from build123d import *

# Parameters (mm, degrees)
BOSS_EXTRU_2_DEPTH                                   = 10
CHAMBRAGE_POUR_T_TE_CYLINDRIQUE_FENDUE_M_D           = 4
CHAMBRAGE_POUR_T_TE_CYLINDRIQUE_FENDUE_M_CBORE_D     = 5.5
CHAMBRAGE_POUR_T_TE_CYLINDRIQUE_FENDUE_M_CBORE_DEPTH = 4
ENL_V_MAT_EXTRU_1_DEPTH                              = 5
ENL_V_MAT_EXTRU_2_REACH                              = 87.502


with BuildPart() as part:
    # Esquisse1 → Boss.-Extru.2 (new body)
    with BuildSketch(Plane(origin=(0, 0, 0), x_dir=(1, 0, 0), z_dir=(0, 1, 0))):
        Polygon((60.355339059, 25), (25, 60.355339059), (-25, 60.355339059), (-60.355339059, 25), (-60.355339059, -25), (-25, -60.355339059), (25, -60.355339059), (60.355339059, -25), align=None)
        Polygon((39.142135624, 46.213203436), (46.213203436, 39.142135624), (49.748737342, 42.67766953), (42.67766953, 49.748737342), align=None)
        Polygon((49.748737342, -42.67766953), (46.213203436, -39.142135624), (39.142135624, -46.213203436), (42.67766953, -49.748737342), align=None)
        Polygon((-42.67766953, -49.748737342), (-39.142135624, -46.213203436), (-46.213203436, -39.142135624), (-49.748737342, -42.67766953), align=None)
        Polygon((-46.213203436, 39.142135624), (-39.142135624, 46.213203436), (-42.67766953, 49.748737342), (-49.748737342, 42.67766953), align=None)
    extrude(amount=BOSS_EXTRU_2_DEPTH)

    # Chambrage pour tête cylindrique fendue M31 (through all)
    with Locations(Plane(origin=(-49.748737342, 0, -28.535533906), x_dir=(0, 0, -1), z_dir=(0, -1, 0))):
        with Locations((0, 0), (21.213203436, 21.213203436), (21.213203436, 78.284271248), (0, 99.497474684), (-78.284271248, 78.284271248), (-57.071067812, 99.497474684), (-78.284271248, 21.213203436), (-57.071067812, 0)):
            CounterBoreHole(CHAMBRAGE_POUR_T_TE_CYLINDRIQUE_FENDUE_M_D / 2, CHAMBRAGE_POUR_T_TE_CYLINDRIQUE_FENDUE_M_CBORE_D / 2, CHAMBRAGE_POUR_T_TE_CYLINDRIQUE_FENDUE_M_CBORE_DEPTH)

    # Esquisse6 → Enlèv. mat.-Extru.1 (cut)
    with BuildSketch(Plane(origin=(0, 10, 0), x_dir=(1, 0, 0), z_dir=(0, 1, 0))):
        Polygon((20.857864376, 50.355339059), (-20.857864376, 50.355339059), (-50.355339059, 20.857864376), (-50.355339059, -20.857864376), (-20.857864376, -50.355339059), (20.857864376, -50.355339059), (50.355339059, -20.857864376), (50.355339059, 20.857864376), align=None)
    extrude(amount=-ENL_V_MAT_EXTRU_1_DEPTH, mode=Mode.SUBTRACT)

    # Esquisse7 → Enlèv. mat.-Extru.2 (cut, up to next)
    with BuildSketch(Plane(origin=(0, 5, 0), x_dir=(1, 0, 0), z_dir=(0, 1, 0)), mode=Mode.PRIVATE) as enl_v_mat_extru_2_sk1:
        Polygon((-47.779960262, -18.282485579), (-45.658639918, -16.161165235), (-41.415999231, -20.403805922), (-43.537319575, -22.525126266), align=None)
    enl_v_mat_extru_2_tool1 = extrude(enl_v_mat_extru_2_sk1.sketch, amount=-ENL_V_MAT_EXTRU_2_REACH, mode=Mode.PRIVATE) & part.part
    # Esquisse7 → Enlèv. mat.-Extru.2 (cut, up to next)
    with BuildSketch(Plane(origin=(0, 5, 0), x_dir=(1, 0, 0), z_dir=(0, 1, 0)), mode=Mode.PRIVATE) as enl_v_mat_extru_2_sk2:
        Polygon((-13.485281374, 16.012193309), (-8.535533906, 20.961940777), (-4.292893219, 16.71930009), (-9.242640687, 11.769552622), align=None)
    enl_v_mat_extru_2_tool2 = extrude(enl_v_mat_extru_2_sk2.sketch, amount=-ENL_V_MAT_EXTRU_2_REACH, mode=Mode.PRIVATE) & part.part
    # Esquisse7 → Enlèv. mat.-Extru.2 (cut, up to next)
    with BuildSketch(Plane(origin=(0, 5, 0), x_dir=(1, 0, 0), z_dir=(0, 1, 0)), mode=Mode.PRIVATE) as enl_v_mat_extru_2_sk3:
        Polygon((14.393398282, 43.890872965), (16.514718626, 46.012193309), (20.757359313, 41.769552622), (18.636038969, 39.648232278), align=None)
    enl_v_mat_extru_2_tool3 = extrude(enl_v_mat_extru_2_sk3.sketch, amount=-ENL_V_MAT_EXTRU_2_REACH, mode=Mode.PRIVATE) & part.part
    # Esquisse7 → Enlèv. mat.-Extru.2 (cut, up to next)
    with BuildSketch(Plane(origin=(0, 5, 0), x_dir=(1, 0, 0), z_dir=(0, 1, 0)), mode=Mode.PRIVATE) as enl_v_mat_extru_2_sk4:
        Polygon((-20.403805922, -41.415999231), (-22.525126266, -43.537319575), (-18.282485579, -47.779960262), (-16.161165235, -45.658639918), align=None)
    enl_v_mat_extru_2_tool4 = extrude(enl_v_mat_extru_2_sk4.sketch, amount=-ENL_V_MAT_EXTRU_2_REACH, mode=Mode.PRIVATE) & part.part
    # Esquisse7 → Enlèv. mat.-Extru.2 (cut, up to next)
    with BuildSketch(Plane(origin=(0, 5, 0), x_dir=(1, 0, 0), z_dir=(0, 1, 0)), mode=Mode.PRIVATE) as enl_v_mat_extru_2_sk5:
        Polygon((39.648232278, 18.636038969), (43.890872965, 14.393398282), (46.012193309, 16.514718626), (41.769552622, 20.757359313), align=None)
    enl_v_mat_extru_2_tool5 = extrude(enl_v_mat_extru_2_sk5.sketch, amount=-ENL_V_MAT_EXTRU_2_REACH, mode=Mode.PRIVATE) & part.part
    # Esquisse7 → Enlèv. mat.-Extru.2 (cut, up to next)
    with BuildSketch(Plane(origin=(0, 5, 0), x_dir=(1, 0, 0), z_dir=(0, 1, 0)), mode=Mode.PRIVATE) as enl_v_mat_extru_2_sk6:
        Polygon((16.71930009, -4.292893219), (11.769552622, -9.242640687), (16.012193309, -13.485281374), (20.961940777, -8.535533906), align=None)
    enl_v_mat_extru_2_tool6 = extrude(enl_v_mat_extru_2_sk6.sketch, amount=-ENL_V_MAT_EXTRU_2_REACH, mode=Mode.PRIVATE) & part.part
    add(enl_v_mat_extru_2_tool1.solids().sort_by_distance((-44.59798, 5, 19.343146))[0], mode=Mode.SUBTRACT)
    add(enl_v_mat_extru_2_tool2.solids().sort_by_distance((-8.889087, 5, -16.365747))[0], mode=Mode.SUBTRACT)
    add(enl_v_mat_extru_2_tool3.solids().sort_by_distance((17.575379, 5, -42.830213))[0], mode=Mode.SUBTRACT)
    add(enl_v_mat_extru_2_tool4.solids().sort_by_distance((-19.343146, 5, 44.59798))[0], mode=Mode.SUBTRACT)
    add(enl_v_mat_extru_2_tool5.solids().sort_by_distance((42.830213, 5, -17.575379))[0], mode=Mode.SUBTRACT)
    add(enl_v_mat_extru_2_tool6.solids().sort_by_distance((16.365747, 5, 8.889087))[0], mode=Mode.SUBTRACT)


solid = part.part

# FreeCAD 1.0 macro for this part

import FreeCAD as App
import Part
import Sketcher
from FreeCAD import Vector
Q = App.Units.Quantity


def add_polygon(sketch, points):
    """Adds a closed chain of lines whose ends are joined by coincident constraints."""
    first, n = sketch.GeometryCount, len(points)
    for a, b in zip(points, points[1:] + points[:1]):
        sketch.addGeometry(Part.LineSegment(App.Vector(*a, 0), App.Vector(*b, 0)), False)
    for i in range(n):
        sketch.addConstraint(Sketcher.Constraint("Coincident", first + i, 2, first + (i + 1) % n, 1))

doc = App.newDocument("Part")
body = doc.addObject("PartDesign::Body", "Body")

# Sketch on XZ plane
sketch1 = body.newObject("Sketcher::SketchObject", "Sketch")
sketch1.AttachmentSupport = (doc.getObject("XZ_Plane"), [""])
sketch1.MapMode = "FlatFace"
add_polygon(sketch1, [(60, -25), (46, -39), (50, -43), (43, -50), (39, -46), (25, -60), (-25, -60), (-39, -46), (-43, -50), (-50, -43), (-46, -39), (-60, -25), (-60, 25), (-46, 39), (-50, 43), (-43, 50), (-39, 46), (-25, 60), (25, 60), (39, 46), (43, 50), (50, 43), (46, 39), (60, 25)])  # lines 0-23
sketch1.addConstraint([
    Sketcher.Constraint("Horizontal", 5),
    Sketcher.Constraint("Vertical", 11),
    Sketcher.Constraint("Horizontal", 17),
    Sketcher.Constraint("Vertical", 23),
    Sketcher.Constraint("Symmetric", 0, 2, 12, 2, -1, 1),
    Sketcher.Constraint("Symmetric", 1, 2, 13, 2, -1, 1),
    Sketcher.Constraint("Symmetric", 2, 2, 14, 2, -1, 1),
    Sketcher.Constraint("Symmetric", 3, 2, 15, 2, -1, 1),
    Sketcher.Constraint("Symmetric", 4, 2, 16, 2, -1, 1),
    Sketcher.Constraint("Symmetric", 6, 2, 18, 2, -1, 1),
    Sketcher.Constraint("Symmetric", 7, 2, 19, 2, -1, 1),
    Sketcher.Constraint("Symmetric", 8, 2, 20, 2, -1, 1),
    Sketcher.Constraint("Symmetric", 9, 2, 21, 2, -1, 1),
    Sketcher.Constraint("Symmetric", 10, 2, 22, 2, -1, 1),
    Sketcher.Constraint("Symmetric", 3, 2, 6, 2, -2),
    Sketcher.Constraint("Symmetric", 2, 2, 7, 2, -2),
    Sketcher.Constraint("Symmetric", 1, 2, 8, 2, -2),
    Sketcher.Constraint("Symmetric", 0, 2, 9, 2, -2),
    Sketcher.Constraint("Perpendicular", 0, 1),
    Sketcher.Constraint("Perpendicular", 1, 2),
    Sketcher.Constraint("Perpendicular", 2, 3),
    Sketcher.Constraint("Perpendicular", 3, 4),
    Sketcher.Constraint("Perpendicular", 4, 6),
    Sketcher.Constraint("Perpendicular", 6, 7),
    Sketcher.Constraint("Perpendicular", 9, 10),
    Sketcher.Constraint("Perpendicular", 10, 12),
    Sketcher.Constraint("Perpendicular", 16, 18),
    Sketcher.Constraint("Equal", 17, 11),
    Sketcher.Constraint("Equal", 1, 3),
    Sketcher.Constraint("Equal", 0, 4),
    Sketcher.Constraint("DistanceX", 5, 2, 5, 1, Q("50 mm")),
    Sketcher.Constraint("Distance", 0, Q("20 mm")),
    Sketcher.Constraint("Distance", 1, Q("5 mm")),
    Sketcher.Constraint("Distance", 2, Q("10 mm")),
])
pad1 = body.newObject("PartDesign::Pad", "Pad")
pad1.Profile = sketch1
pad1.Length = 10
pad1.Reversed = True

# Sketch on XZ plane
sketch2 = body.newObject("Sketcher::SketchObject", "Sketch001")
sketch2.AttachmentSupport = (doc.getObject("XZ_Plane"), [""])
sketch2.MapMode = "FlatFace"
sketch2.addGeometry([
    Part.Circle(Vector(-49.7, -28.5, 0), Vector(0, 0, 1), 2),  # 0
    Part.Circle(Vector(-28.5, -49.7, 0), Vector(0, 0, 1), 2),  # 1
    Part.Circle(Vector(28.5, -49.7, 0), Vector(0, 0, 1), 2),  # 2
    Part.Circle(Vector(49.7, -28.5, 0), Vector(0, 0, 1), 2),  # 3
    Part.Circle(Vector(28.5, 49.7, 0), Vector(0, 0, 1), 2),  # 4
    Part.Circle(Vector(49.7, 28.5, 0), Vector(0, 0, 1), 2),  # 5
    Part.Circle(Vector(-28.5, 49.7, 0), Vector(0, 0, 1), 2),  # 6
    Part.Circle(Vector(-49.7, 28.5, 0), Vector(0, 0, 1), 2),  # 7
], False)
sketch2.addConstraint([
    Sketcher.Constraint("Equal", 0, 1),
    Sketcher.Constraint("Equal", 1, 2),
    Sketcher.Constraint("Equal", 2, 3),
    Sketcher.Constraint("Equal", 3, 4),
    Sketcher.Constraint("Equal", 4, 5),
    Sketcher.Constraint("Equal", 5, 6),
    Sketcher.Constraint("Equal", 6, 7),
    Sketcher.Constraint("Symmetric", 1, 3, 4, 3, -1, 1),
    Sketcher.Constraint("Symmetric", 0, 3, 5, 3, -1, 1),
    Sketcher.Constraint("Symmetric", 2, 3, 6, 3, -1, 1),
    Sketcher.Constraint("Symmetric", 3, 3, 7, 3, -1, 1),
    Sketcher.Constraint("Symmetric", 1, 3, 2, 3, -2),
    Sketcher.Constraint("Symmetric", 0, 3, 3, 3, -2),
    Sketcher.Constraint("Diameter", 0, Q("4 mm")),
    Sketcher.Constraint("DistanceX", 0, 3, 2, 3, Q("78.284271 mm")),
    Sketcher.Constraint("DistanceY", 3, 3, 4, 3, Q("78.284271 mm")),
    Sketcher.Constraint("DistanceX", 0, 3, -1, 1, Q("49.748737 mm")),
    Sketcher.Constraint("DistanceY", 0, 3, -1, 1, Q("28.535534 mm")),
])
doc.recompute()
hole = body.newObject("PartDesign::Hole", "Hole")
hole.Profile = sketch2
hole.ThreadType = "None"
hole.Diameter = 4
hole.DepthType = "ThroughAll"
hole.HoleCutType = "Counterbore"
hole.HoleCutDiameter = 5.5
hole.HoleCutDepth = 4

# Sketch on XZ plane
sketch3 = body.newObject("Sketcher::SketchObject", "Sketch002")
sketch3.AttachmentSupport = (doc.getObject("XZ_Plane"), [""])
sketch3.MapMode = "FlatFace"
sketch3.AttachmentOffset = App.Placement(Vector(0, 0, -10), App.Rotation())
add_polygon(sketch3, [(21, -50), (-21, -50), (-50, -21), (-50, 21), (-21, 50), (21, 50), (50, 21), (50, -21)])  # lines 0-7
sketch3.addConstraint([
    Sketcher.Constraint("Horizontal", 0),
    Sketcher.Constraint("Vertical", 2),
    Sketcher.Constraint("Horizontal", 4),
    Sketcher.Constraint("Vertical", 6),
    Sketcher.Constraint("Symmetric", 0, 2, 4, 2, -1, 1),
    Sketcher.Constraint("Symmetric", 1, 2, 5, 2, -1, 1),
    Sketcher.Constraint("Perpendicular", 1, 3),
    Sketcher.Constraint("Perpendicular", 5, 7),
    Sketcher.Constraint("Horizontal", 2, 2, 5, 2),
    Sketcher.Constraint("Horizontal", 1, 2, 6, 2),
    Sketcher.Constraint("Vertical", 0, 2, 3, 2),
    Sketcher.Constraint("Equal", 4, 2),
    Sketcher.Constraint("DistanceX", 0, 2, 0, 1, Q("41.715729 mm")),
    Sketcher.Constraint("Distance", 1, Q("41.715729 mm")),
])
pocket1 = body.newObject("PartDesign::Pocket", "Pocket")
pocket1.Profile = sketch3
pocket1.Length = 5
pocket1.Reversed = True

# Sketch on XZ plane
sketch4 = body.newObject("Sketcher::SketchObject", "Sketch003")
sketch4.AttachmentSupport = (doc.getObject("XZ_Plane"), [""])
sketch4.MapMode = "FlatFace"
sketch4.AttachmentOffset = App.Placement(Vector(0, 0, -5), App.Rotation())
add_polygon(sketch4, [(-45.7, 16.2), (-47.8, 18.3), (-43.5, 22.5), (-41.4, 20.4)])  # lines 0-3
sketch4.addConstraint([
    Sketcher.Constraint("Perpendicular", 0, 1),
    Sketcher.Constraint("Perpendicular", 1, 2),
    Sketcher.Constraint("Perpendicular", 2, 3),
    Sketcher.Constraint("Angle", 0, Q("135 deg")),
    Sketcher.Constraint("Distance", 0, Q("3 mm")),
    Sketcher.Constraint("Distance", 1, Q("6 mm")),
    Sketcher.Constraint("DistanceX", 2, 2, -1, 1, Q("41.415999 mm")),
    Sketcher.Constraint("DistanceY", -1, 1, 0, 2, Q("18.282486 mm")),
])
pocket2 = body.newObject("PartDesign::Pocket", "Pocket001")
pocket2.Profile = sketch4
pocket2.Type = "UpToFirst"
pocket2.Reversed = True

# Sketch on XZ plane
sketch5 = body.newObject("Sketcher::SketchObject", "Sketch004")
sketch5.AttachmentSupport = (doc.getObject("XZ_Plane"), [""])
sketch5.MapMode = "FlatFace"
sketch5.AttachmentOffset = App.Placement(Vector(0, 0, -5), App.Rotation())
add_polygon(sketch5, [(-9, -21), (-13, -16), (-9, -12), (-4, -17)])  # lines 0-3
sketch5.addConstraint([
    Sketcher.Constraint("Perpendicular", 0, 1),
    Sketcher.Constraint("Perpendicular", 1, 2),
    Sketcher.Constraint("Perpendicular", 2, 3),
    Sketcher.Constraint("Angle", 0, Q("135 deg")),
    Sketcher.Constraint("Distance", 0, Q("7 mm")),
    Sketcher.Constraint("Distance", 1, Q("6 mm")),
    Sketcher.Constraint("DistanceY", 2, 2, -1, 1, Q("16.7193 mm")),
    Sketcher.Constraint("DistanceX", 0, 2, -1, 1, Q("13.485281 mm")),
])
pocket3 = body.newObject("PartDesign::Pocket", "Pocket002")
pocket3.Profile = sketch5
pocket3.Type = "UpToFirst"
pocket3.Reversed = True

# Sketch on XZ plane
sketch6 = body.newObject("Sketcher::SketchObject", "Sketch005")
sketch6.AttachmentSupport = (doc.getObject("XZ_Plane"), [""])
sketch6.MapMode = "FlatFace"
sketch6.AttachmentOffset = App.Placement(Vector(0, 0, -5), App.Rotation())
add_polygon(sketch6, [(16.5, -46), (14.4, -43.9), (18.6, -39.6), (20.8, -41.8)])  # lines 0-3
sketch6.addConstraint([
    Sketcher.Constraint("Perpendicular", 0, 1),
    Sketcher.Constraint("Perpendicular", 1, 2),
    Sketcher.Constraint("Perpendicular", 2, 3),
    Sketcher.Constraint("Angle", 0, Q("135 deg")),
    Sketcher.Constraint("Distance", 0, Q("3 mm")),
    Sketcher.Constraint("Distance", 1, Q("6 mm")),
    Sketcher.Constraint("DistanceX", -1, 1, 0, 2, Q("14.393398 mm")),
    Sketcher.Constraint("DistanceY", 0, 2, -1, 1, Q("43.890873 mm")),
])
pocket4 = body.newObject("PartDesign::Pocket", "Pocket003")
pocket4.Profile = sketch6
pocket4.Type = "UpToFirst"
pocket4.Reversed = True

# Sketch on XZ plane
sketch7 = body.newObject("Sketcher::SketchObject", "Sketch006")
sketch7.AttachmentSupport = (doc.getObject("XZ_Plane"), [""])
sketch7.MapMode = "FlatFace"
sketch7.AttachmentOffset = App.Placement(Vector(0, 0, -5), App.Rotation())
add_polygon(sketch7, [(-20.4, 41.4), (-22.5, 43.5), (-18.3, 47.8), (-16.2, 45.7)])  # lines 0-3
sketch7.addConstraint([
    Sketcher.Constraint("Perpendicular", 0, 1),
    Sketcher.Constraint("Perpendicular", 1, 2),
    Sketcher.Constraint("Perpendicular", 2, 3),
    Sketcher.Constraint("Angle", 0, Q("135 deg")),
    Sketcher.Constraint("Distance", 0, Q("3 mm")),
    Sketcher.Constraint("Distance", 1, Q("6 mm")),
    Sketcher.Constraint("DistanceY", -1, 1, 3, 2, Q("41.415999 mm")),
    Sketcher.Constraint("DistanceX", 0, 2, -1, 1, Q("22.525126 mm")),
])
pocket5 = body.newObject("PartDesign::Pocket", "Pocket004")
pocket5.Profile = sketch7
pocket5.Type = "UpToFirst"
pocket5.Reversed = True

# Sketch on XZ plane
sketch8 = body.newObject("Sketcher::SketchObject", "Sketch007")
sketch8.AttachmentSupport = (doc.getObject("XZ_Plane"), [""])
sketch8.MapMode = "FlatFace"
sketch8.AttachmentOffset = App.Placement(Vector(0, 0, -5), App.Rotation())
add_polygon(sketch8, [(39.6, -18.6), (43.9, -14.4), (46, -16.5), (41.8, -20.8)])  # lines 0-3
sketch8.addConstraint([
    Sketcher.Constraint("Perpendicular", 0, 1),
    Sketcher.Constraint("Perpendicular", 1, 2),
    Sketcher.Constraint("Perpendicular", 2, 3),
    Sketcher.Constraint("Angle", 0, Q("45 deg")),
    Sketcher.Constraint("Distance", 0, Q("6 mm")),
    Sketcher.Constraint("Distance", 1, Q("3 mm")),
    Sketcher.Constraint("DistanceY", 0, 2, -1, 1, Q("14.393398 mm")),
    Sketcher.Constraint("DistanceX", -1, 1, 0, 2, Q("43.890873 mm")),
])
pocket6 = body.newObject("PartDesign::Pocket", "Pocket005")
pocket6.Profile = sketch8
pocket6.Type = "UpToFirst"
pocket6.Reversed = True

# Sketch on XZ plane
sketch9 = body.newObject("Sketcher::SketchObject", "Sketch008")
sketch9.AttachmentSupport = (doc.getObject("XZ_Plane"), [""])
sketch9.MapMode = "FlatFace"
sketch9.AttachmentOffset = App.Placement(Vector(0, 0, -5), App.Rotation())
add_polygon(sketch9, [(17, 4), (12, 9), (16, 13), (21, 9)])  # lines 0-3
sketch9.addConstraint([
    Sketcher.Constraint("Perpendicular", 0, 1),
    Sketcher.Constraint("Perpendicular", 1, 2),
    Sketcher.Constraint("Perpendicular", 2, 3),
    Sketcher.Constraint("Angle", 0, Q("135 deg")),
    Sketcher.Constraint("Distance", 0, Q("7 mm")),
    Sketcher.Constraint("Distance", 1, Q("6 mm")),
    Sketcher.Constraint("DistanceX", -1, 1, 3, 2, Q("16.7193 mm")),
    Sketcher.Constraint("DistanceY", -1, 1, 0, 2, Q("9.242641 mm")),
])
pocket7 = body.newObject("PartDesign::Pocket", "Pocket006")
pocket7.Profile = sketch9
pocket7.Type = "UpToFirst"
pocket7.Reversed = True

doc.recompute()
